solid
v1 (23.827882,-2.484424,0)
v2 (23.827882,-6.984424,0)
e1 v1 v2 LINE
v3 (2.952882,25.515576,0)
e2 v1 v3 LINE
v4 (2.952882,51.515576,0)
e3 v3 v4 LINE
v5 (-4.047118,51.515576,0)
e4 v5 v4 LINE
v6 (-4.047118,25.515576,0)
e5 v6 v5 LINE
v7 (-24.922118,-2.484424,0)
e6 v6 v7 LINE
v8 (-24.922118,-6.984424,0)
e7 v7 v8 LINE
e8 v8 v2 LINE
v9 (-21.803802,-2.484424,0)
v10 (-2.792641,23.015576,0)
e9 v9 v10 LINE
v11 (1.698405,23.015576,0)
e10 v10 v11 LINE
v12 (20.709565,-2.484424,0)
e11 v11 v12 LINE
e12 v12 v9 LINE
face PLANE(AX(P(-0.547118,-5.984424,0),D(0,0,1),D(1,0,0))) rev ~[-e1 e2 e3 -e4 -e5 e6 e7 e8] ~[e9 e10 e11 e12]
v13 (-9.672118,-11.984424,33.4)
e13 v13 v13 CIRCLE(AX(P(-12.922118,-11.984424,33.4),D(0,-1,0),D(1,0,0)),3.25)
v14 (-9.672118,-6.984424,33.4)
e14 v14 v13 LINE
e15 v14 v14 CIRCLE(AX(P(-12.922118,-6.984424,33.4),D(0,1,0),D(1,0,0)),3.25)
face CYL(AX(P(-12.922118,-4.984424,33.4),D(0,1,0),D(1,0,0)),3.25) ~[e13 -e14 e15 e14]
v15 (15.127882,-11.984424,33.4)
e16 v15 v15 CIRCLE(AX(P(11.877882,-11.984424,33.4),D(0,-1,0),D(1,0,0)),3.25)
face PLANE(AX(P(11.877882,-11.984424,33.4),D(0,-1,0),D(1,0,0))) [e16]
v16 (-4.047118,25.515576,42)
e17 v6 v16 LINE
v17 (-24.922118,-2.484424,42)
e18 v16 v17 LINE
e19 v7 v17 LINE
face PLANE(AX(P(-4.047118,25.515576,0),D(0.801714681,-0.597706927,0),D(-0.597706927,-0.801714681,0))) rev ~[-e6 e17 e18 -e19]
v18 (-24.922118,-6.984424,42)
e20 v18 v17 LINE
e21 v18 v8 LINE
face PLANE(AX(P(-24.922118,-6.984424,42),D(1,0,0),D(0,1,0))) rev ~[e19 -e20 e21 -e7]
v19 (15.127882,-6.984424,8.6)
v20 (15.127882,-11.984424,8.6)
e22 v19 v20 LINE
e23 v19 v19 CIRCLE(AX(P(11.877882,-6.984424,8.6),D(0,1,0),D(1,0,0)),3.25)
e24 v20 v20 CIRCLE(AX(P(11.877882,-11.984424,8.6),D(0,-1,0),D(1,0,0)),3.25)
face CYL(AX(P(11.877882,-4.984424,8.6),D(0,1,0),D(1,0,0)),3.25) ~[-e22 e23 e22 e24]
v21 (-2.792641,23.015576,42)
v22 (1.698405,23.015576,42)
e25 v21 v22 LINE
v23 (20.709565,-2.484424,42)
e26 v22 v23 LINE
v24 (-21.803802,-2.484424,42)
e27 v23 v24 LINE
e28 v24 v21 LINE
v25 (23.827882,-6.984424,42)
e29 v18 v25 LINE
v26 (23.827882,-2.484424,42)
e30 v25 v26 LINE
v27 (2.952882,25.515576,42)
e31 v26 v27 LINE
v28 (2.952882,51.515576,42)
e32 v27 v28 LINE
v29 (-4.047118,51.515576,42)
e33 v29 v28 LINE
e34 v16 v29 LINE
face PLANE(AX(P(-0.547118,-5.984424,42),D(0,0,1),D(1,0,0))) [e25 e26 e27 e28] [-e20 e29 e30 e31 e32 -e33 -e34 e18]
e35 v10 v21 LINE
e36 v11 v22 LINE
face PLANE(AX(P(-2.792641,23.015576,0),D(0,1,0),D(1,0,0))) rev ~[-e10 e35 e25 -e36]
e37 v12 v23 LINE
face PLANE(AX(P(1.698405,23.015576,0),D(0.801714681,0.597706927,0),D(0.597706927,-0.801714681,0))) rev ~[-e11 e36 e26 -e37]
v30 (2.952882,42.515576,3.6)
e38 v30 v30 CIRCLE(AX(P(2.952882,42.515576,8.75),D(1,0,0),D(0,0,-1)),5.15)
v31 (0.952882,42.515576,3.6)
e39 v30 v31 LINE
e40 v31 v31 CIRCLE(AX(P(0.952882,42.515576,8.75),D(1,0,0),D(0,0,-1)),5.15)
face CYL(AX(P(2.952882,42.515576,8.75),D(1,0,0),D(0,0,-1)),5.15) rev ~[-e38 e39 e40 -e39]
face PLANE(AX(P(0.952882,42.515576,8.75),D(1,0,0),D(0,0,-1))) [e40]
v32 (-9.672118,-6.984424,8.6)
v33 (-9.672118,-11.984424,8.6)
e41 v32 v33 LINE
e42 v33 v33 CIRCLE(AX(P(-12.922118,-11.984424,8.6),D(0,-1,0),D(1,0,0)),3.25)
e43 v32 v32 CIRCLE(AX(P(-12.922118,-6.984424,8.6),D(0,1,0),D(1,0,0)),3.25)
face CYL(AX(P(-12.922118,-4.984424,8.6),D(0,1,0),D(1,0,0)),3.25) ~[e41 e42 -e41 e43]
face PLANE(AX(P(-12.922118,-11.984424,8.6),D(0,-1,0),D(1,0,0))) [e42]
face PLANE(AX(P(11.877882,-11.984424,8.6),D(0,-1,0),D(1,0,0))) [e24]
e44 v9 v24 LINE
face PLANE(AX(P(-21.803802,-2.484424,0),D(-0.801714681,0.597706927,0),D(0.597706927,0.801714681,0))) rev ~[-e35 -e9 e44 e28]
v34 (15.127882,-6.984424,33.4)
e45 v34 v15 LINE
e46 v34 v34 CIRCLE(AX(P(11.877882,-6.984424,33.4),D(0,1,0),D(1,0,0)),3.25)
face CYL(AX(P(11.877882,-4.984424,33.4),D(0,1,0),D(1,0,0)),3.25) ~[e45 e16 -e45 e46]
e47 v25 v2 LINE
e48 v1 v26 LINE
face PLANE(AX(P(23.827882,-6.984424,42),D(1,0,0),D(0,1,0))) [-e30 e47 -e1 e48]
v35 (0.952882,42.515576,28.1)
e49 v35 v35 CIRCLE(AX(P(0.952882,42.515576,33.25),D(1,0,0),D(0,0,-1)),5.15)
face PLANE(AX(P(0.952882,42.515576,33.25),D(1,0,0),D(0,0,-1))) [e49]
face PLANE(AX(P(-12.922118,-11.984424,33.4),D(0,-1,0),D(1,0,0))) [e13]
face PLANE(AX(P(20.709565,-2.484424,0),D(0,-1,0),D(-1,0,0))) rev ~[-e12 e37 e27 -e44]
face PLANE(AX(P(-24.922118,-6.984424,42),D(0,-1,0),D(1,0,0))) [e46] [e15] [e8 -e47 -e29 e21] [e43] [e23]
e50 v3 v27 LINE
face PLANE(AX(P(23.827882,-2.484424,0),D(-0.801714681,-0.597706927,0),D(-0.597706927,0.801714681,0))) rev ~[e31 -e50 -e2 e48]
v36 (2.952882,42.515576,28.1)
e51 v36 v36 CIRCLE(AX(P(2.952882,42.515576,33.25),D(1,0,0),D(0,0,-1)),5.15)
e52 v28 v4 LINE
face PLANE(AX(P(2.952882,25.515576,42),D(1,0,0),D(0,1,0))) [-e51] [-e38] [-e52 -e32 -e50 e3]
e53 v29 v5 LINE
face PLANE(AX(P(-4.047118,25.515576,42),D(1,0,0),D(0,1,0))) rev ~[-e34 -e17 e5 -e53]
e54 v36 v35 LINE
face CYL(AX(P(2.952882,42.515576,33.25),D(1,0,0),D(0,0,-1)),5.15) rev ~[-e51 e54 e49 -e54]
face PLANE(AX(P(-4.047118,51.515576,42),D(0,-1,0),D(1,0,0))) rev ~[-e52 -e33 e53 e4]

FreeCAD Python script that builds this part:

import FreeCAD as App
import Part
import Sketcher

V = App.Vector
Q = App.Units.Quantity


def add_polygon(sketch, points):
    """Adds a closed chain of lines whose ends are joined by coincident constraints."""
    first, n = sketch.GeometryCount, len(points)
    for a, b in zip(points, points[1:] + points[:1]):
        sketch.addGeometry(Part.LineSegment(App.Vector(*a, 0), App.Vector(*b, 0)), False)
    for i in range(n):
        sketch.addConstraint(Sketcher.Constraint("Coincident", first + i, 2, first + (i + 1) % n, 1))

doc = App.newDocument("Part")
body = doc.addObject("PartDesign::Body", "Body")

sketch1 = body.newObject("Sketcher::SketchObject", "Sketch")
sketch1.AttachmentSupport = (doc.getObject("XY_Plane"), [""])
sketch1.MapMode = "FlatFace"
add_polygon(sketch1, [(-24.9, -2.5), (-24.9, -5), (23.8, -5), (23.8, -2.5), (3, 25.5), (-4, 25.5)])
add_polygon(sketch1, [(20.7, -2.5), (-21.8, -2.5), (-2.8, 23), (1.7, 23)])
sketch1.addConstraint([
    Sketcher.Constraint("Vertical", 0),
    Sketcher.Constraint("Horizontal", 1),
    Sketcher.Constraint("Vertical", 2),
    Sketcher.Constraint("Horizontal", 4),
    Sketcher.Constraint("Horizontal", 6),
    Sketcher.Constraint("Horizontal", 8),
    Sketcher.Constraint("Parallel", 5, 7),
    Sketcher.Constraint("Parallel", 3, 9),
    Sketcher.Constraint("Horizontal", 2, 2, 5, 2),
    Sketcher.Constraint("Horizontal", 5, 2, 6, 2),
    Sketcher.Constraint("Equal", 3, 5),
    Sketcher.Constraint("DistanceX", 4, 2, 4, 1, Q("7 mm")),
    Sketcher.Constraint("DistanceY", 0, 2, 0, 1, Q("2.5 mm")),
    Sketcher.Constraint("DistanceY", 2, 2, 3, 2, Q("28 mm")),
    Sketcher.Constraint("DistanceY", 0, 2, 7, 2, Q("28 mm")),
    Sketcher.Constraint("DistanceX", 1, 1, 1, 2, Q("48.75 mm")),
    Sketcher.Constraint("DistanceX", 6, 2, 6, 1, Q("42.513367 mm")),
    Sketcher.Constraint("DistanceX", 0, 2, -1, 1, Q("24.922118 mm")),
    Sketcher.Constraint("DistanceX", 7, 2, -1, 1, Q("2.792641 mm")),
    Sketcher.Constraint("DistanceY", 0, 2, -1, 1, Q("4.984424 mm")),
])
pad1 = body.newObject("PartDesign::Pad", "Pad")
pad1.Profile = sketch1
pad1.Length = 42

sketch2 = body.newObject("Sketcher::SketchObject", "Sketch001")
sketch2.AttachmentSupport = (doc.getObject("XY_Plane"), [""])
sketch2.MapMode = "FlatFace"
sketch2.AttachmentOffset = App.Placement(V(0, 0, 42), App.Rotation())
add_polygon(sketch2, [(-4, 52), (-4, 26), (3, 26), (3, 52)])
sketch2.addConstraint([
    Sketcher.Constraint("Vertical", 0),
    Sketcher.Constraint("Horizontal", 1),
    Sketcher.Constraint("Vertical", 2),
    Sketcher.Constraint("Horizontal", 3),
    Sketcher.Constraint("DistanceX", 1, 1, 1, 2, Q("7 mm")),
    Sketcher.Constraint("DistanceY", 0, 2, 0, 1, Q("26 mm")),
    Sketcher.Constraint("DistanceX", 0, 2, -1, 1, Q("4.047118 mm")),
    Sketcher.Constraint("DistanceY", -1, 1, 0, 2, Q("25.515576 mm")),
])
pad2 = body.newObject("PartDesign::Pad", "Pad001")
pad2.Profile = sketch2
pad2.Length = 42
pad2.Reversed = True

sketch3 = body.newObject("Sketcher::SketchObject", "Sketch002")
sketch3.AttachmentSupport = (doc.getObject("YZ_Plane"), [""])
sketch3.MapMode = "FlatFace"
sketch3.AttachmentOffset = App.Placement(V(0, 0, 2.952882), App.Rotation())
sketch3.addGeometry([
    Part.Circle(V(43, 33, 0), V(0, 0, 1), 5),
    Part.Circle(V(43, 9, 0), V(0, 0, 1), 5),
], False)
sketch3.addConstraint([
    Sketcher.Constraint("Equal", 0, 1),
    Sketcher.Constraint("Vertical", 0, 3, 1, 3),
    Sketcher.Constraint("Diameter", 0, Q("10.3 mm")),
    Sketcher.Constraint("DistanceY", 1, 3, 0, 3, Q("24.5 mm")),
    Sketcher.Constraint("DistanceY", -1, 1, 0, 3, Q("33.25 mm")),
    Sketcher.Constraint("DistanceX", -1, 1, 0, 3, Q("42.515576 mm")),
])
pocket1 = body.newObject("PartDesign::Pocket", "Pocket")
pocket1.Profile = sketch3
pocket1.Length = 2

sketch4 = body.newObject("Sketcher::SketchObject", "Sketch003")
sketch4.AttachmentSupport = (doc.getObject("XZ_Plane"), [""])
sketch4.MapMode = "FlatFace"
sketch4.AttachmentOffset = App.Placement(V(0, 0, 4.984424), App.Rotation())
sketch4.addGeometry([
    Part.Circle(V(-12.9, 33.4, 0), V(0, 0, 1), 3.2),
    Part.Circle(V(11.9, 33.4, 0), V(0, 0, 1), 3.2),
    Part.Circle(V(11.9, 8.6, 0), V(0, 0, 1), 3.2),
    Part.Circle(V(-12.9, 8.6, 0), V(0, 0, 1), 3.2),
], False)
sketch4.addConstraint([
    Sketcher.Constraint("Equal", 0, 1),
    Sketcher.Constraint("Equal", 1, 2),
    Sketcher.Constraint("Equal", 2, 3),
    Sketcher.Constraint("Horizontal", 0, 3, 1, 3),
    Sketcher.Constraint("Horizontal", 2, 3, 3, 3),
    Sketcher.Constraint("Vertical", 1, 3, 2, 3),
    Sketcher.Constraint("Vertical", 0, 3, 3, 3),
    Sketcher.Constraint("Diameter", 0, Q("6.5 mm")),
    Sketcher.Constraint("DistanceY", -1, 1, 0, 3, Q("33.4 mm")),
    Sketcher.Constraint("DistanceY", -1, 1, 2, 3, Q("8.6 mm")),
    Sketcher.Constraint("DistanceX", 0, 3, 1, 3, Q("24.8 mm")),
    Sketcher.Constraint("DistanceX", 0, 3, -1, 1, Q("12.922118 mm")),
])
pad3 = body.newObject("PartDesign::Pad", "Pad002")
pad3.Profile = sketch4
pad3.Length = 7

sketch5 = body.newObject("Sketcher::SketchObject", "Sketch004")
sketch5.AttachmentSupport = (doc.getObject("XY_Plane"), [""])
sketch5.MapMode = "FlatFace"
sketch5.AttachmentOffset = App.Placement(V(0, 0, 42), App.Rotation())
add_polygon(sketch5, [(-24.9, -5), (-24.9, -7), (23.8, -7), (23.8, -5)])
sketch5.addConstraint([
    Sketcher.Constraint("Vertical", 0),
    Sketcher.Constraint("Horizontal", 1),
    Sketcher.Constraint("Vertical", 2),
    Sketcher.Constraint("Horizontal", 3),
    Sketcher.Constraint("DistanceY", 0, 2, 0, 1, Q("2 mm")),
    Sketcher.Constraint("DistanceX", 1, 1, 1, 2, Q("48.75 mm")),
    Sketcher.Constraint("DistanceX", 0, 2, -1, 1, Q("24.922118 mm")),
    Sketcher.Constraint("DistanceY", 0, 2, -1, 1, Q("6.984424 mm")),
])
pad4 = body.newObject("PartDesign::Pad", "Pad003")
pad4.Profile = sketch5
pad4.Length = 42
pad4.Reversed = True

doc.recompute()
